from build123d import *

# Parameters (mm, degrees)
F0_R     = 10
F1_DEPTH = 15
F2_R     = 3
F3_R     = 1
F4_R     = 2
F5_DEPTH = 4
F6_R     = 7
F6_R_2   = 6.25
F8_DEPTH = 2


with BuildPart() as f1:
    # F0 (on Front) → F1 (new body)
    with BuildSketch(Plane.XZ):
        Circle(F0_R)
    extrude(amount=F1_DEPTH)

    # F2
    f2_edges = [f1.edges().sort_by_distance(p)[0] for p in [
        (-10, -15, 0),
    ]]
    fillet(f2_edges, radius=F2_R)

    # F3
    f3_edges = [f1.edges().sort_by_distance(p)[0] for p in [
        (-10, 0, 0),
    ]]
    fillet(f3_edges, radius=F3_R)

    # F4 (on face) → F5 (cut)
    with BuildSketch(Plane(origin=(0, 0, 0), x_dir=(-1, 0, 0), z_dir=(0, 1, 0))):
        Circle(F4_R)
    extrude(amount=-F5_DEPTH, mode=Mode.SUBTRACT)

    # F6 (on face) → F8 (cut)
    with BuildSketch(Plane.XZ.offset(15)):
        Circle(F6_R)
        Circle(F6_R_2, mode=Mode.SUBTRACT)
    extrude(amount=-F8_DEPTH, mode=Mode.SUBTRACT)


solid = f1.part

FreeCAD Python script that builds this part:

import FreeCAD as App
import Part
import Sketcher
from FreeCAD import Vector
Q = App.Units.Quantity


def edges_at(feature, points):
    """Names of the edges that pass closest to the given points."""
    edges = feature.Shape.Edges
    near = lambda p: min(range(len(edges)), key=lambda i: edges[i].distToShape(Part.Vertex(*p))[0])
    return sorted({f"Edge{near(p) + 1}" for p in points})

doc = App.newDocument("Part")
body = doc.addObject("PartDesign::Body", "Body")

sketch1 = body.newObject("Sketcher::SketchObject", "Sketch")
sketch1.AttachmentSupport = (doc.getObject("XZ_Plane"), [""])
sketch1.MapMode = "FlatFace"
sketch1.addGeometry(Part.Circle(Vector(0, 0, 0), Vector(0, 0, 1), 10), False)
sketch1.addConstraint([
    Sketcher.Constraint("Coincident", 0, 3, -1, 1),
    Sketcher.Constraint("Diameter", 0, Q("20 mm")),
])
pad1 = body.newObject("PartDesign::Pad", "Pad")
pad1.Profile = sketch1
pad1.Length = 15
doc.recompute()

fillet = body.newObject("PartDesign::Fillet", "Fillet")
fillet.Base = (pad1, edges_at(pad1, [(-10, -15, 0)]))
fillet.Radius = 3
doc.recompute()

fillet2 = body.newObject("PartDesign::Fillet", "Fillet001")
fillet2.Base = (fillet, edges_at(fillet, [(-10, 0, 0)]))
fillet2.Radius = 1

sketch2 = body.newObject("Sketcher::SketchObject", "Sketch001")
sketch2.AttachmentSupport = (doc.getObject("XZ_Plane"), [""])
sketch2.MapMode = "FlatFace"
sketch2.addGeometry(Part.Circle(Vector(0, 0, 0), Vector(0, 0, 1), 2), False)
sketch2.addConstraint([
    Sketcher.Constraint("Coincident", 0, 3, -1, 1),
    Sketcher.Constraint("Diameter", 0, Q("4 mm")),
])
pocket1 = body.newObject("PartDesign::Pocket", "Pocket")
pocket1.Profile = sketch2
pocket1.Length = 4
pocket1.Reversed = True

sketch3 = body.newObject("Sketcher::SketchObject", "Sketch002")
sketch3.AttachmentSupport = (doc.getObject("XZ_Plane"), [""])
sketch3.MapMode = "FlatFace"
sketch3.AttachmentOffset = App.Placement(Vector(0, 0, 15), App.Rotation())
sketch3.addGeometry([
    Part.Circle(Vector(0, 0, 0), Vector(0, 0, 1), 7),
    Part.Circle(Vector(0, 0, 0), Vector(0, 0, 1), 6.25),
], False)
sketch3.addConstraint([
    Sketcher.Constraint("Coincident", 0, 3, -1, 1),
    Sketcher.Constraint("Coincident", 1, 3, -1, 1),
    Sketcher.Constraint("Diameter", 0, Q("14 mm")),
    Sketcher.Constraint("Diameter", 1, Q("12.5 mm")),
])
pocket2 = body.newObject("PartDesign::Pocket", "Pocket001")
pocket2.Profile = sketch3
pocket2.Length = 2

doc.recompute()
